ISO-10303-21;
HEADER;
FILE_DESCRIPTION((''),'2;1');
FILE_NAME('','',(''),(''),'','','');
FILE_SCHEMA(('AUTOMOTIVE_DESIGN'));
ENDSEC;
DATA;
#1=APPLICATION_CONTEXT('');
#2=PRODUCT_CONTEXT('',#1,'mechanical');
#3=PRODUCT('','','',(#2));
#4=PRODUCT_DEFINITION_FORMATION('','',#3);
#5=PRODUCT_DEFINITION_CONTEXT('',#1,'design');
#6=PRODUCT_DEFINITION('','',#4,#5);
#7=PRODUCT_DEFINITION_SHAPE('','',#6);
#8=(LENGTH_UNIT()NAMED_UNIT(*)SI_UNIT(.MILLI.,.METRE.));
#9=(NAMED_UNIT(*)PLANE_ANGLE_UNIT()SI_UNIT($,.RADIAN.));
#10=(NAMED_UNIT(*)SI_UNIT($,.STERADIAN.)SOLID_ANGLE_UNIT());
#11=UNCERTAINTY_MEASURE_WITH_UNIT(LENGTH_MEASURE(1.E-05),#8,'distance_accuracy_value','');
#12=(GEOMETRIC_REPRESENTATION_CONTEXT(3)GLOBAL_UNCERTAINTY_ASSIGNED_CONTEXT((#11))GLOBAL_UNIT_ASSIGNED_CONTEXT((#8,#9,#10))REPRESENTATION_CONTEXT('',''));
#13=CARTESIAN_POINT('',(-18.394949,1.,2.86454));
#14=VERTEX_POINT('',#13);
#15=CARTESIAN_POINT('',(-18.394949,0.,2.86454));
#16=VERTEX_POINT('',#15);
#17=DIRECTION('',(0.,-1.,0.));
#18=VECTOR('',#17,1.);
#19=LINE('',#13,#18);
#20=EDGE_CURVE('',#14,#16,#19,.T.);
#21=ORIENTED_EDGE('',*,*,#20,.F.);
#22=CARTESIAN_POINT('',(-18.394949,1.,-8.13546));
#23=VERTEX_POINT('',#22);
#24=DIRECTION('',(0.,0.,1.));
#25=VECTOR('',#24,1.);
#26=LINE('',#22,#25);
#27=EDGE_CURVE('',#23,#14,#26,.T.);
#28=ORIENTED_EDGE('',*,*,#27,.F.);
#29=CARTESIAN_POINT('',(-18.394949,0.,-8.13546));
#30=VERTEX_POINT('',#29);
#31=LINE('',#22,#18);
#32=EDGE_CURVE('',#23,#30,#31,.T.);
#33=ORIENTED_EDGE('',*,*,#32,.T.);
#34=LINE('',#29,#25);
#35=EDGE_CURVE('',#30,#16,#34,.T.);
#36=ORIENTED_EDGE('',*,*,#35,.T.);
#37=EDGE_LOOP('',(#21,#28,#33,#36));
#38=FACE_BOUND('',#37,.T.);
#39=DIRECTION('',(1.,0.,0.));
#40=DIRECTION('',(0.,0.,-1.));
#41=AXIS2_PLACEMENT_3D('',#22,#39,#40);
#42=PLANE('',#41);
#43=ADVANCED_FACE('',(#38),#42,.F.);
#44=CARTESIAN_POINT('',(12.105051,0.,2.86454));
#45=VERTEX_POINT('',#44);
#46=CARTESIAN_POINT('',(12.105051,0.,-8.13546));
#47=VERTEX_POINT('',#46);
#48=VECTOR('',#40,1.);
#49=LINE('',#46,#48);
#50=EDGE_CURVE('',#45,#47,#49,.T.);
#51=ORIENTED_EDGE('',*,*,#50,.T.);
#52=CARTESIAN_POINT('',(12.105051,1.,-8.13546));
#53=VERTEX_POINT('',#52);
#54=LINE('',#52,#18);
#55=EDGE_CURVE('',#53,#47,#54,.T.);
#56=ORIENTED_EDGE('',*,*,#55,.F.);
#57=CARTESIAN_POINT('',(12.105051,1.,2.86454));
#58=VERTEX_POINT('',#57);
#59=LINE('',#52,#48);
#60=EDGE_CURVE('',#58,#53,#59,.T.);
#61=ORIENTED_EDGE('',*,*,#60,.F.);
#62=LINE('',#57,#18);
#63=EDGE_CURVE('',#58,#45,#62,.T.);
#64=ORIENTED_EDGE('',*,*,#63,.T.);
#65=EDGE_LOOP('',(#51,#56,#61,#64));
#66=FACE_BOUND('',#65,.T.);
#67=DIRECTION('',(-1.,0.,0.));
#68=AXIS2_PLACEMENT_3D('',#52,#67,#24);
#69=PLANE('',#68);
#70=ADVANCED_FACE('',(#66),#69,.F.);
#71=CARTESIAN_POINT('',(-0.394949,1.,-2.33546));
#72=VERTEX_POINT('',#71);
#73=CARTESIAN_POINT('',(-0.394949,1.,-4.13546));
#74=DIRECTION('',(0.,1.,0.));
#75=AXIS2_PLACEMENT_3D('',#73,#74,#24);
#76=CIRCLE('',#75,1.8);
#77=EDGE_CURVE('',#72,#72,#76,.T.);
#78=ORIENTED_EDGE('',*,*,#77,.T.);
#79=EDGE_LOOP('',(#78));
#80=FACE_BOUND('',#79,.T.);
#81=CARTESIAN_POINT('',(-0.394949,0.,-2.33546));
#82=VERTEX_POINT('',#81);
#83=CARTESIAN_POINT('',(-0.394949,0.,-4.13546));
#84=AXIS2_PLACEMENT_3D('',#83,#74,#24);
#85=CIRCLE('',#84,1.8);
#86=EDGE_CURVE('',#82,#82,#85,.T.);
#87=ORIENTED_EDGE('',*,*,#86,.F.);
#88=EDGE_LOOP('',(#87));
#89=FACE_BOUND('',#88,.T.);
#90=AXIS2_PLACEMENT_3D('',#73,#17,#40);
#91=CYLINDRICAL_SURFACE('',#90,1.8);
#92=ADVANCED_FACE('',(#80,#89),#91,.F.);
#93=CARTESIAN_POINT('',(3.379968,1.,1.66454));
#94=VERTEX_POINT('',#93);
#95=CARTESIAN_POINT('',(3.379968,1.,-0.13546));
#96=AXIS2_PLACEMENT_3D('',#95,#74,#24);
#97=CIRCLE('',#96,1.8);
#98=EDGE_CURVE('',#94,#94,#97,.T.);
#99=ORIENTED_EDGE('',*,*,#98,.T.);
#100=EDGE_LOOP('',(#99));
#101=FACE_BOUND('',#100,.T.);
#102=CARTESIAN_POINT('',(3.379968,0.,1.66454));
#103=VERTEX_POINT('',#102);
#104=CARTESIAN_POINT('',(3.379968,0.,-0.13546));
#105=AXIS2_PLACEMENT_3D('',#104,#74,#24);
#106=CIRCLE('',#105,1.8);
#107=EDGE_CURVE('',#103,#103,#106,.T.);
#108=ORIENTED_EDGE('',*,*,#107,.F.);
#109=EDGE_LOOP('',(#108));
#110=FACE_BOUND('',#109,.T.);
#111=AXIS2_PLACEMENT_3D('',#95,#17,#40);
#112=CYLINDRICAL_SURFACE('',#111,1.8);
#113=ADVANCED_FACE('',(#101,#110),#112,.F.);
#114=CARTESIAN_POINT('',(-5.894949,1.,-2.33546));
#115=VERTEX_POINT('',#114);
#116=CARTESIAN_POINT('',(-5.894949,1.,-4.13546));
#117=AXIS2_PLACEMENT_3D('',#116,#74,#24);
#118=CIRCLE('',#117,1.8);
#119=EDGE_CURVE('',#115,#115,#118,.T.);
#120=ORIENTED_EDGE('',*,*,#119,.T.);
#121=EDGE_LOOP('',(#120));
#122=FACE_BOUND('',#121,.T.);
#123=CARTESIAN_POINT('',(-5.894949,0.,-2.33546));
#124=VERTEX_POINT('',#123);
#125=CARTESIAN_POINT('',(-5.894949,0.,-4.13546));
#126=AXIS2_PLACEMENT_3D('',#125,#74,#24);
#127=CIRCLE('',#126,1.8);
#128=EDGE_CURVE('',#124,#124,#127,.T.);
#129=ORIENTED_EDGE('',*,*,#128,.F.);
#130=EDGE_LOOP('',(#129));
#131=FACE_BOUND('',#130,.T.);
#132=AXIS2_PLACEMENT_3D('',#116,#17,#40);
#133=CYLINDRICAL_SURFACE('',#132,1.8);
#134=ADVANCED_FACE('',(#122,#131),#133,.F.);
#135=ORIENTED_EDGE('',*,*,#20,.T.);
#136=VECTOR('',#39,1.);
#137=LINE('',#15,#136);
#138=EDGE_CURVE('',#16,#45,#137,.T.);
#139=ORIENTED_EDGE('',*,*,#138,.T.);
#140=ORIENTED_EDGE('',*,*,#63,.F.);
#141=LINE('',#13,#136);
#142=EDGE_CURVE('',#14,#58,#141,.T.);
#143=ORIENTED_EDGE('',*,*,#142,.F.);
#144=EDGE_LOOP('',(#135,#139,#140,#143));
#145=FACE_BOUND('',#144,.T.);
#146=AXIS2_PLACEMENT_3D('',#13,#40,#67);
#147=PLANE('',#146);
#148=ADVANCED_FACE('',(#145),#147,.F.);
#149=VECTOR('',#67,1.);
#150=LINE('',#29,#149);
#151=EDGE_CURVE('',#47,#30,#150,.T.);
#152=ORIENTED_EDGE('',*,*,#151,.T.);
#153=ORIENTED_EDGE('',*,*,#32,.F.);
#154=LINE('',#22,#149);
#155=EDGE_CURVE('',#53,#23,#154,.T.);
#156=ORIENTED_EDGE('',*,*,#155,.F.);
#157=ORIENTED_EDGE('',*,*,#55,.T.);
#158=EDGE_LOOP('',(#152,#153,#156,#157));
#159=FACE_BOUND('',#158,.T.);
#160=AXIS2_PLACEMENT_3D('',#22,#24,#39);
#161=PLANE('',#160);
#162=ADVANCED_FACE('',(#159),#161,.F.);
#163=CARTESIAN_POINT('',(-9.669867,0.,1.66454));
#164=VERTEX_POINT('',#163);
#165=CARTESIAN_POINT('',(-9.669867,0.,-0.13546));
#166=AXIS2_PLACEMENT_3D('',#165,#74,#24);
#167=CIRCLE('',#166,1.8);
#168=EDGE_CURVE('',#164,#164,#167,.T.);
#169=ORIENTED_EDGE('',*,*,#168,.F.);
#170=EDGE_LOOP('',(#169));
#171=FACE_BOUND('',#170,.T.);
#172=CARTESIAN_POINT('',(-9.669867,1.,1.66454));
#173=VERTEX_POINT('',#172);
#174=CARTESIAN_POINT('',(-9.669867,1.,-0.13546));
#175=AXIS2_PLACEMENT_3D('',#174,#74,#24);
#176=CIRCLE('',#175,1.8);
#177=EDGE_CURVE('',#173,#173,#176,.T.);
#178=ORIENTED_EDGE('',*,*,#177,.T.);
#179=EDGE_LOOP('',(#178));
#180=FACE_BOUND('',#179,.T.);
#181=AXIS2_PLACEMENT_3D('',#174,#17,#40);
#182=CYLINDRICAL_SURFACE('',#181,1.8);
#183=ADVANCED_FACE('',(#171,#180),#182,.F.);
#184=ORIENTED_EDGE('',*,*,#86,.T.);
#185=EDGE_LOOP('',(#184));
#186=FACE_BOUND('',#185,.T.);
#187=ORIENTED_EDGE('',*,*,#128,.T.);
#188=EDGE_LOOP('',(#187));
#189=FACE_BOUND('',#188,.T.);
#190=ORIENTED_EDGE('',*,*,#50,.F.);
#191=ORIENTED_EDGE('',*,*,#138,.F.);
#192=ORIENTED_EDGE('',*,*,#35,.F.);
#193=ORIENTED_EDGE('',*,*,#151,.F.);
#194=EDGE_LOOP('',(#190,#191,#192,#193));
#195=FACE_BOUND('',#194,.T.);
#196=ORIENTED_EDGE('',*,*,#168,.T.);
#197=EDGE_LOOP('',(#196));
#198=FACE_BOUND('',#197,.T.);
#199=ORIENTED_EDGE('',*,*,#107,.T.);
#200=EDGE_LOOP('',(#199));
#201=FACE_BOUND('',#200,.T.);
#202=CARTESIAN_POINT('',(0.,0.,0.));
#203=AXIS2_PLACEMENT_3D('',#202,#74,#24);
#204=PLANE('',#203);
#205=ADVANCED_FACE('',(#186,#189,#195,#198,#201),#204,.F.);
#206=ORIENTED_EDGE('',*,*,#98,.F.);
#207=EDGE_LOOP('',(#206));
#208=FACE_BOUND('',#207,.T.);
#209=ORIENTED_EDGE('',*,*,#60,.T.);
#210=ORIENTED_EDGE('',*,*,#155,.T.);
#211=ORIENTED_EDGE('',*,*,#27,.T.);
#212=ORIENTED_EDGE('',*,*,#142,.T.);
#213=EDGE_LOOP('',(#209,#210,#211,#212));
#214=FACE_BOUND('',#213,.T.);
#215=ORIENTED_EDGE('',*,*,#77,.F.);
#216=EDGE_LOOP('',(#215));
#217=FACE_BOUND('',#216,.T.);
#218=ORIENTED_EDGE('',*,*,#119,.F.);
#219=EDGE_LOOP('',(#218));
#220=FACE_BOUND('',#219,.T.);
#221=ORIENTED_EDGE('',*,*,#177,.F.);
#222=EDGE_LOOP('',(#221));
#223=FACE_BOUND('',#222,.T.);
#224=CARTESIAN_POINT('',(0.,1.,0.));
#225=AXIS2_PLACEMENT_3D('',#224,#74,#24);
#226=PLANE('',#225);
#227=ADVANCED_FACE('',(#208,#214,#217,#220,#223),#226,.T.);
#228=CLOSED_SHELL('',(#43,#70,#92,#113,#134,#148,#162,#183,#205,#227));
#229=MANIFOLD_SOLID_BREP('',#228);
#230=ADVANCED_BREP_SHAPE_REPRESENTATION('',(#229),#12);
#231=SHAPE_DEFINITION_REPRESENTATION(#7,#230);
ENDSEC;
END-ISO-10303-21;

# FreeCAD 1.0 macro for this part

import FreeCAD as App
import Part
import Sketcher
from FreeCAD import Vector
Q = App.Units.Quantity

doc = App.newDocument("Part")
params = doc.addObject("Spreadsheet::Sheet", "Params")
for row, (alias, value) in enumerate([
    ("sketch1_diameter", "3.6 mm"),
    ("sketch1_height", "11 mm"),
    ("sketch1_width", "30.5 mm"),
    ("pad1_length", "1 mm"),
], start=1):
    params.set(f"A{row}", alias)
    params.set(f"B{row}", "=" + value)
    params.setAlias(f"B{row}", alias)

body = doc.addObject("PartDesign::Body", "Body")

# Sketch on XZ plane
sketch1 = body.newObject("Sketcher::SketchObject", "Sketch")
sketch1.AttachmentSupport = (doc.getObject("XZ_Plane"), [""])
sketch1.MapMode = "FlatFace"
sketch1.addGeometry([
    Part.LineSegment(Vector(-18.4, -8.1, 0), Vector(-18.4, 2.9, 0)),  # 0
    Part.LineSegment(Vector(-18.4, 2.9, 0), Vector(12.1, 2.9, 0)),  # 1
    Part.LineSegment(Vector(12.1, 2.9, 0), Vector(12.1, -8.1, 0)),  # 2
    Part.LineSegment(Vector(12.1, -8.1, 0), Vector(-18.4, -8.1, 0)),  # 3
    Part.Circle(Vector(-9.7, -0.1, 0), Vector(0, 0, 1), 1.8),  # 4
    Part.Circle(Vector(3.4, -0.1, 0), Vector(0, 0, 1), 1.8),  # 5
    Part.Circle(Vector(-5.9, -4.1, 0), Vector(0, 0, 1), 1.8),  # 6
    Part.Circle(Vector(-0.4, -4.1, 0), Vector(0, 0, 1), 1.8),  # 7
], False)
sketch1.addConstraint([
    Sketcher.Constraint("Coincident", 0, 2, 1, 1),
    Sketcher.Constraint("Coincident", 1, 2, 2, 1),
    Sketcher.Constraint("Coincident", 2, 2, 3, 1),
    Sketcher.Constraint("Coincident", 3, 2, 0, 1),
    Sketcher.Constraint("Vertical", 0),
    Sketcher.Constraint("Horizontal", 1),
    Sketcher.Constraint("Vertical", 2),
    Sketcher.Constraint("Horizontal", 3),
    Sketcher.Constraint("Equal", 4, 5),
    Sketcher.Constraint("Equal", 5, 6),
    Sketcher.Constraint("Equal", 6, 7),
    Sketcher.Constraint("Horizontal", 4, 3, 5, 3),
    Sketcher.Constraint("Horizontal", 6, 3, 7, 3),
    Sketcher.Constraint("Diameter", 4, Q("3.6 mm")),
    Sketcher.Constraint("DistanceY", 0, 1, 0, 2, Q("11 mm")),
    Sketcher.Constraint("DistanceX", 1, 1, 1, 2, Q("30.5 mm")),
    Sketcher.Constraint("DistanceY", 6, 3, 4, 3, Q("4 mm")),
    Sketcher.Constraint("DistanceY", 4, 3, 0, 2, Q("3 mm")),
    Sketcher.Constraint("DistanceX", 0, 2, 7, 3, Q("18 mm")),
    Sketcher.Constraint("DistanceX", 6, 3, 1, 2, Q("18 mm")),
    Sketcher.Constraint("DistanceY", 4, 3, -1, 1, Q("0.13546 mm")),
    Sketcher.Constraint("DistanceX", 6, 3, -1, 1, Q("5.894949 mm")),
    Sketcher.Constraint("DistanceX", 4, 3, -1, 1, Q("9.669867 mm")),
    Sketcher.Constraint("DistanceX", -1, 1, 5, 3, Q("3.379968 mm")),
])
sketch1.setExpression("Constraints[13]", "Params.sketch1_diameter")
sketch1.setExpression("Constraints[14]", "Params.sketch1_height")
sketch1.setExpression("Constraints[15]", "Params.sketch1_width")
pad1 = body.newObject("PartDesign::Pad", "Pad")
pad1.Profile = sketch1
pad1.setExpression("Length", "Params.pad1_length")
pad1.Reversed = True

doc.recompute()
